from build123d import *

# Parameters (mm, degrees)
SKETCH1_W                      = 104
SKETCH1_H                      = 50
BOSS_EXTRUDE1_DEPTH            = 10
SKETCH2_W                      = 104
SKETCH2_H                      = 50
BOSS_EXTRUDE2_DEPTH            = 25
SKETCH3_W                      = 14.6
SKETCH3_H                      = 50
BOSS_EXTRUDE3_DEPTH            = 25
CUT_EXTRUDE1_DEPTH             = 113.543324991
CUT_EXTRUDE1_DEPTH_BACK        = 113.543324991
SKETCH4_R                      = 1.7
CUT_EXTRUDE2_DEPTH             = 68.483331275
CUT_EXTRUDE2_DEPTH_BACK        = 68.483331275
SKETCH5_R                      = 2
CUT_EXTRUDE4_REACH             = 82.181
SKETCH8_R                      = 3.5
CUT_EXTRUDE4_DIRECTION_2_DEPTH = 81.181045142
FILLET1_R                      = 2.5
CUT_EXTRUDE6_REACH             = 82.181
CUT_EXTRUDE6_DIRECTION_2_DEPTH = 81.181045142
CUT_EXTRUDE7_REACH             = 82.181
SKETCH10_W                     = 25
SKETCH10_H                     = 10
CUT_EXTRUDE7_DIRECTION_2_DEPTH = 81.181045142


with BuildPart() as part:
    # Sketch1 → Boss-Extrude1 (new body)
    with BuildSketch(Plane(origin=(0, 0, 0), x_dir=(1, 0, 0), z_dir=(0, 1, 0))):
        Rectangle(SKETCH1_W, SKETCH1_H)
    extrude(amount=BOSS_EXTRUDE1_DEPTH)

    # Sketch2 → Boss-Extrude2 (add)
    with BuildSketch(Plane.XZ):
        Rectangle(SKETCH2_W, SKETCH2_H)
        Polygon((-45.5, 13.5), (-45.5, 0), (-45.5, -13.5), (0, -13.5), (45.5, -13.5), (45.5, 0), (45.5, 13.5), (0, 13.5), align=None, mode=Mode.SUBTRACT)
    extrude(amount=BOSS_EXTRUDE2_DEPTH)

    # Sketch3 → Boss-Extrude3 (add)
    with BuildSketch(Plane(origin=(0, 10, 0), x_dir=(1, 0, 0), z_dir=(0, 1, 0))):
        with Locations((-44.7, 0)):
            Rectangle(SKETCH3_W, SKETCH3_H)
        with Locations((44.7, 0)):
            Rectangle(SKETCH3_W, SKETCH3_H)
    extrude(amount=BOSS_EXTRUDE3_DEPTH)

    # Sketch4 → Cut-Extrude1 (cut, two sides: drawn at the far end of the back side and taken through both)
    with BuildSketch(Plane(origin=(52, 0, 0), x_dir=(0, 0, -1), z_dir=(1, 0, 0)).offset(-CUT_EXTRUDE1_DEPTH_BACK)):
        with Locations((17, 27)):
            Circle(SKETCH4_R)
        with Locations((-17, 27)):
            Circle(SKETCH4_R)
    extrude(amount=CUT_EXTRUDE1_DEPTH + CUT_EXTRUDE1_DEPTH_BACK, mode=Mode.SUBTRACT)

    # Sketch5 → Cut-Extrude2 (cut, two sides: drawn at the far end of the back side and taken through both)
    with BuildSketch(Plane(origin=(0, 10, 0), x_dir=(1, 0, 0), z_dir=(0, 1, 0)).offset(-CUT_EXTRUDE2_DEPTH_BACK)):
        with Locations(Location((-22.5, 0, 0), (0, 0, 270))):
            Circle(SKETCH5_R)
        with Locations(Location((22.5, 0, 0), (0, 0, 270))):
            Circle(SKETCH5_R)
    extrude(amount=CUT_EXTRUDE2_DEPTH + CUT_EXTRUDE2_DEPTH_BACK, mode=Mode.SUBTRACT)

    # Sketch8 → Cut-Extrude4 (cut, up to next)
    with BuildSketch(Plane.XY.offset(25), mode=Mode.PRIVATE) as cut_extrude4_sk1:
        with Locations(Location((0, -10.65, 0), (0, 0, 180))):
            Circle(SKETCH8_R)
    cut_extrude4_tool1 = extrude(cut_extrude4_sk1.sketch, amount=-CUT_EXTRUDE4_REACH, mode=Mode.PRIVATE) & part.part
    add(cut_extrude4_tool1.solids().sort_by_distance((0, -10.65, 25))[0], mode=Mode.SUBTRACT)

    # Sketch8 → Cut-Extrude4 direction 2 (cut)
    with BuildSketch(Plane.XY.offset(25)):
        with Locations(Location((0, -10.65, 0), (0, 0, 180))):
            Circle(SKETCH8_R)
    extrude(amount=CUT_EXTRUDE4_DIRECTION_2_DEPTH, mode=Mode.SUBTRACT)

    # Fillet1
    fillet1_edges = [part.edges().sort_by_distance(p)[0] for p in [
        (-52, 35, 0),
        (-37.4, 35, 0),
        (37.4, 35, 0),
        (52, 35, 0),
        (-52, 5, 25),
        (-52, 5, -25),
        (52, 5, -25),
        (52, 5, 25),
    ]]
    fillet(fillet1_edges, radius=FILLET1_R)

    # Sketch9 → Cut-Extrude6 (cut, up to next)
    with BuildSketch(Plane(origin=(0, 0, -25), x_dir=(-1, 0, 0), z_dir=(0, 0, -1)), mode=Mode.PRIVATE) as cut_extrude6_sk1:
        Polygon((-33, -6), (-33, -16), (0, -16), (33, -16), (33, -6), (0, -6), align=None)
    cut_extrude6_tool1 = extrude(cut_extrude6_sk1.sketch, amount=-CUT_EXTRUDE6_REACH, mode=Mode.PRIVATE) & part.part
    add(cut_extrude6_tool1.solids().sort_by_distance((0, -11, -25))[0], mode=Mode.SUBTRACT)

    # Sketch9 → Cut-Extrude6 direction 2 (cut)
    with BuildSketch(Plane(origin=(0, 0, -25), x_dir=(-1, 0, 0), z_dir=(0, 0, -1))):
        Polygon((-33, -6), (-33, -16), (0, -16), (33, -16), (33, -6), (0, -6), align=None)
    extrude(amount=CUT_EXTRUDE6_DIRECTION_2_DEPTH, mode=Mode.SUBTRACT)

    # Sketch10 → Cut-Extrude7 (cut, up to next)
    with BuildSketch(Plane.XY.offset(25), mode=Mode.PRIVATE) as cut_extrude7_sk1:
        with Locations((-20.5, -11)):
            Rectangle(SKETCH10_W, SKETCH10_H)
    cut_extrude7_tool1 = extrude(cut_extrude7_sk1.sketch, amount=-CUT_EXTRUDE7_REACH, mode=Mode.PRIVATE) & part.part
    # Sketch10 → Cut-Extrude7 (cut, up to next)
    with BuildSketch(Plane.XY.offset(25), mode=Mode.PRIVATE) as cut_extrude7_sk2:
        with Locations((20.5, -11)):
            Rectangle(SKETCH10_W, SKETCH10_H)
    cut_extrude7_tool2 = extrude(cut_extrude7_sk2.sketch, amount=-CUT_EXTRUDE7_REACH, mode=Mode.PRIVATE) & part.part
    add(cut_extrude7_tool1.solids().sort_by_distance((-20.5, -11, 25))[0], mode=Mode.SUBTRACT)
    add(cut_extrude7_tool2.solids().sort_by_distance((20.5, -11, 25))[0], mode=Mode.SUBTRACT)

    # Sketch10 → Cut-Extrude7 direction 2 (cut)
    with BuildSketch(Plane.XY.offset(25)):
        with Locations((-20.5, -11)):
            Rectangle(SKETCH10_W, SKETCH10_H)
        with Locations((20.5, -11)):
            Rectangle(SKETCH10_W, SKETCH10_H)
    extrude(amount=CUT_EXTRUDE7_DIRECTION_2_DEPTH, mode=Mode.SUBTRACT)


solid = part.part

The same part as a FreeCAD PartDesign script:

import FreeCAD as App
import Part
import Sketcher


def edges_at(feature, points):
    """Names of the edges that pass closest to the given points."""
    edges = feature.Shape.Edges
    near = lambda p: min(range(len(edges)), key=lambda i: edges[i].distToShape(Part.Vertex(*p))[0])
    return sorted({f"Edge{near(p) + 1}" for p in points})


def add_polygon(sketch, points):
    """Adds a closed chain of lines whose ends are joined by coincident constraints."""
    first, n = sketch.GeometryCount, len(points)
    for a, b in zip(points, points[1:] + points[:1]):
        sketch.addGeometry(Part.LineSegment(App.Vector(*a, 0), App.Vector(*b, 0)), False)
    for i in range(n):
        sketch.addConstraint(Sketcher.Constraint("Coincident", first + i, 2, first + (i + 1) % n, 1))

doc = App.newDocument("Part")
params = doc.addObject("Spreadsheet::Sheet", "Params")
for row, (alias, value) in enumerate([
    ("sketch1_width", "104 mm"),
    ("sketch1_height", "50 mm"),
    ("pad1_length", "10 mm"),
    ("sketch2_width", "104 mm"),
    ("sketch2_width2", "91 mm"),
    ("sketch2_height", "50 mm"),
    ("sketch2_height2", "27 mm"),
    ("pad2_length", "25 mm"),
    ("sketch3_height", "50 mm"),
    ("sketch3_width", "14.6 mm"),
    ("pad3_length", "25 mm"),
    ("sketch4_diameter", "3.4 mm"),
    ("sketch5_diameter", "4 mm"),
    ("sketch6_diameter", "7 mm"),
    ("sketch7_diameter", "7 mm"),
    ("pocket4_length", "81.181045 mm"),
    ("fillet_radius", "2.5 mm"),
    ("sketch8_width", "66 mm"),
    ("sketch8_height", "10 mm"),
    ("sketch9_width", "66 mm"),
    ("sketch9_height", "10 mm"),
    ("pocket6_length", "81.181045 mm"),
    ("sketch10_width", "25 mm"),
    ("sketch10_height", "10 mm"),
    ("sketch11_width", "25 mm"),
    ("sketch11_height", "10 mm"),
    ("sketch12_width", "25 mm"),
    ("sketch12_height", "10 mm"),
    ("pocket9_length", "81.181045 mm"),
], start=1):
    params.set(f"A{row}", alias)
    params.set(f"B{row}", "=" + value)
    params.setAlias(f"B{row}", alias)

body = doc.addObject("PartDesign::Body", "Body")

# Sketch on XZ plane
sketch1 = doc.addObject("Sketcher::SketchObject", "Sketch")
body.addObject(sketch1)
sketch1.AttachmentSupport = (doc.XZ_Plane, [""])
sketch1.MapMode = "FlatFace"
add_polygon(sketch1, [(-52, -25), (-52, 25), (52, 25), (52, -25)])  # lines 0-3
sketch1.addConstraint(Sketcher.Constraint("Vertical", 0))
sketch1.addConstraint(Sketcher.Constraint("Horizontal", 1))
sketch1.addConstraint(Sketcher.Constraint("Vertical", 2))
sketch1.addConstraint(Sketcher.Constraint("Horizontal", 3))
sketch1.addConstraint(Sketcher.Constraint("Symmetric", 0, 2, 2, 2, -1, 1))
sketch1.addConstraint(Sketcher.Constraint("DistanceX", 1, 1, 1, 2, 104.0))
sketch1.addConstraint(Sketcher.Constraint("DistanceY", 0, 1, 0, 2, 50.0))
sketch1.setExpression("Constraints[9]", "Params.sketch1_width")
sketch1.setExpression("Constraints[10]", "Params.sketch1_height")
pad1 = doc.addObject("PartDesign::Pad", "Pad")
body.addObject(pad1)
pad1.Profile = sketch1
pad1.setExpression("Length", "Params.pad1_length")
pad1.Reversed = True

# Sketch on XZ plane
sketch2 = doc.addObject("Sketcher::SketchObject", "Sketch001")
body.addObject(sketch2)
sketch2.AttachmentSupport = (doc.XZ_Plane, [""])
sketch2.MapMode = "FlatFace"
add_polygon(sketch2, [(-52, 25), (-52, -25), (52, -25), (52, 25)])  # lines 0-3
add_polygon(sketch2, [(-45.5, -13.5), (-45.5, 13.5), (45.5, 13.5), (45.5, -13.5)])  # lines 4-7
sketch2.addConstraint(Sketcher.Constraint("Vertical", 0))
sketch2.addConstraint(Sketcher.Constraint("Horizontal", 1))
sketch2.addConstraint(Sketcher.Constraint("Vertical", 2))
sketch2.addConstraint(Sketcher.Constraint("Horizontal", 3))
sketch2.addConstraint(Sketcher.Constraint("Vertical", 4))
sketch2.addConstraint(Sketcher.Constraint("Horizontal", 5))
sketch2.addConstraint(Sketcher.Constraint("Vertical", 6))
sketch2.addConstraint(Sketcher.Constraint("Horizontal", 7))
sketch2.addConstraint(Sketcher.Constraint("Symmetric", 0, 2, 2, 2, -1, 1))
sketch2.addConstraint(Sketcher.Constraint("Symmetric", 4, 2, 6, 2, -1, 1))
sketch2.addConstraint(Sketcher.Constraint("DistanceX", 1, 1, 1, 2, 104.0))
sketch2.addConstraint(Sketcher.Constraint("DistanceX", 5, 1, 5, 2, 91.0))
sketch2.addConstraint(Sketcher.Constraint("DistanceY", 0, 2, 0, 1, 50.0))
sketch2.addConstraint(Sketcher.Constraint("DistanceY", 4, 1, 4, 2, 27.0))
sketch2.setExpression("Constraints[18]", "Params.sketch2_width")
sketch2.setExpression("Constraints[19]", "Params.sketch2_width2")
sketch2.setExpression("Constraints[20]", "Params.sketch2_height")
sketch2.setExpression("Constraints[21]", "Params.sketch2_height2")
pad2 = doc.addObject("PartDesign::Pad", "Pad001")
body.addObject(pad2)
pad2.Profile = sketch2
pad2.setExpression("Length", "Params.pad2_length")

# Sketch on XZ plane
sketch3 = doc.addObject("Sketcher::SketchObject", "Sketch002")
body.addObject(sketch3)
sketch3.AttachmentSupport = (doc.XZ_Plane, [""])
sketch3.MapMode = "FlatFace"
sketch3.AttachmentOffset = App.Placement(App.Vector(0, 0, -10), App.Rotation())
add_polygon(sketch3, [(-52, -25), (-52, 25), (-37.4, 25), (-37.4, -25)])  # lines 0-3
add_polygon(sketch3, [(37.4, -25), (37.4, 25), (52, 25), (52, -25)])  # lines 4-7
sketch3.addConstraint(Sketcher.Constraint("Vertical", 0))
sketch3.addConstraint(Sketcher.Constraint("Horizontal", 1))
sketch3.addConstraint(Sketcher.Constraint("Vertical", 2))
sketch3.addConstraint(Sketcher.Constraint("Horizontal", 3))
sketch3.addConstraint(Sketcher.Constraint("Vertical", 4))
sketch3.addConstraint(Sketcher.Constraint("Horizontal", 5))
sketch3.addConstraint(Sketcher.Constraint("Vertical", 6))
sketch3.addConstraint(Sketcher.Constraint("Horizontal", 7))
sketch3.addConstraint(Sketcher.Constraint("Symmetric", 2, 2, 4, 2, -1, 1))
sketch3.addConstraint(Sketcher.Constraint("Symmetric", 0, 2, 6, 2, -1, 1))
sketch3.addConstraint(Sketcher.Constraint("Horizontal", 1, 2, 4, 2))
sketch3.addConstraint(Sketcher.Constraint("DistanceY", 0, 1, 0, 2, 50.0))
sketch3.addConstraint(Sketcher.Constraint("DistanceX", 1, 1, 1, 2, 14.6))
sketch3.addConstraint(Sketcher.Constraint("DistanceX", 0, 2, -1, 1, 52.0))
sketch3.setExpression("Constraints[19]", "Params.sketch3_height")
sketch3.setExpression("Constraints[20]", "Params.sketch3_width")
pad3 = doc.addObject("PartDesign::Pad", "Pad002")
body.addObject(pad3)
pad3.Profile = sketch3
pad3.setExpression("Length", "Params.pad3_length")
pad3.Reversed = True

# Sketch on YZ plane
sketch4 = doc.addObject("Sketcher::SketchObject", "Sketch003")
body.addObject(sketch4)
sketch4.AttachmentSupport = (doc.YZ_Plane, [""])
sketch4.MapMode = "FlatFace"
sketch4.AttachmentOffset = App.Placement(App.Vector(0, 0, 52), App.Rotation())
sketch4.addGeometry(Part.Circle(App.Vector(27, -17, 0), App.Vector(0, 0, 1), 1.7), False)
sketch4.addGeometry(Part.Circle(App.Vector(27, 17, 0), App.Vector(0, 0, 1), 1.7), False)
sketch4.addConstraint(Sketcher.Constraint("Equal", 0, 1))
sketch4.addConstraint(Sketcher.Constraint("Symmetric", 0, 3, 1, 3, -1))
sketch4.addConstraint(Sketcher.Constraint("Diameter", 0, 3.4))
sketch4.addConstraint(Sketcher.Constraint("DistanceX", -1, 1, 0, 3, 27.0))
sketch4.addConstraint(Sketcher.Constraint("DistanceY", 0, 3, -1, 1, 17.0))
sketch4.setExpression("Constraints[2]", "Params.sketch4_diameter")
pocket1 = doc.addObject("PartDesign::Pocket", "Pocket")
body.addObject(pocket1)
pocket1.Profile = sketch4
pocket1.Type = "ThroughAll"
pocket1.Midplane = True

# Sketch on XZ plane
sketch5 = doc.addObject("Sketcher::SketchObject", "Sketch004")
body.addObject(sketch5)
sketch5.AttachmentSupport = (doc.XZ_Plane, [""])
sketch5.MapMode = "FlatFace"
sketch5.AttachmentOffset = App.Placement(App.Vector(0, 0, -10), App.Rotation())
sketch5.addGeometry(Part.Circle(App.Vector(-22.5, 0, 0), App.Vector(0, 0, 1), 2), False)
sketch5.addGeometry(Part.Circle(App.Vector(22.5, 0, 0), App.Vector(0, 0, 1), 2), False)
sketch5.addConstraint(Sketcher.Constraint("Equal", 0, 1))
sketch5.addConstraint(Sketcher.Constraint("Symmetric", 0, 3, 1, 3, -1, 1))
sketch5.addConstraint(Sketcher.Constraint("PointOnObject", 0, 3, -1))
sketch5.addConstraint(Sketcher.Constraint("Diameter", 0, 4.0))
sketch5.addConstraint(Sketcher.Constraint("DistanceX", 0, 3, 1, 3, 45.0))
sketch5.setExpression("Constraints[3]", "Params.sketch5_diameter")
pocket2 = doc.addObject("PartDesign::Pocket", "Pocket001")
body.addObject(pocket2)
pocket2.Profile = sketch5
pocket2.Type = "ThroughAll"
pocket2.Midplane = True

# Sketch on XY plane
sketch6 = doc.addObject("Sketcher::SketchObject", "Sketch005")
body.addObject(sketch6)
sketch6.AttachmentSupport = (doc.XY_Plane, [""])
sketch6.MapMode = "FlatFace"
sketch6.AttachmentOffset = App.Placement(App.Vector(0, 0, 25), App.Rotation())
sketch6.addGeometry(Part.Circle(App.Vector(0, -10.65, 0), App.Vector(0, 0, 1), 3.5), False)
sketch6.addConstraint(Sketcher.Constraint("PointOnObject", 0, 3, -2))
sketch6.addConstraint(Sketcher.Constraint("Diameter", 0, 7.0))
sketch6.addConstraint(Sketcher.Constraint("DistanceY", 0, 3, -1, 1, 10.65))
sketch6.setExpression("Constraints[1]", "Params.sketch6_diameter")
pocket3 = doc.addObject("PartDesign::Pocket", "Pocket002")
body.addObject(pocket3)
pocket3.Profile = sketch6
pocket3.Type = "UpToFirst"

# Sketch on XY plane
sketch7 = doc.addObject("Sketcher::SketchObject", "Sketch006")
body.addObject(sketch7)
sketch7.AttachmentSupport = (doc.XY_Plane, [""])
sketch7.MapMode = "FlatFace"
sketch7.AttachmentOffset = App.Placement(App.Vector(0, 0, 25), App.Rotation())
sketch7.addGeometry(Part.Circle(App.Vector(0, -10.65, 0), App.Vector(0, 0, 1), 3.5), False)
sketch7.addConstraint(Sketcher.Constraint("PointOnObject", 0, 3, -2))
sketch7.addConstraint(Sketcher.Constraint("Diameter", 0, 7.0))
sketch7.addConstraint(Sketcher.Constraint("DistanceY", 0, 3, -1, 1, 10.65))
sketch7.setExpression("Constraints[1]", "Params.sketch7_diameter")
pocket4 = doc.addObject("PartDesign::Pocket", "Pocket003")
body.addObject(pocket4)
pocket4.Profile = sketch7
pocket4.setExpression("Length", "Params.pocket4_length")
pocket4.Reversed = True
doc.recompute()

fillet = doc.addObject("PartDesign::Fillet", "Fillet")
body.addObject(fillet)
fillet.Base = (pocket4, edges_at(pocket4, [
    (-52, 35, 0),
    (-37.4, 35, 0),
    (37.4, 35, 0),
    (52, 35, 0),
    (-52, 5, 25),
    (-52, 5, -25),
    (52, 5, -25),
    (52, 5, 25),
]))
fillet.setExpression("Radius", "Params.fillet_radius")

# Sketch on XY plane
sketch8 = doc.addObject("Sketcher::SketchObject", "Sketch007")
body.addObject(sketch8)
sketch8.AttachmentSupport = (doc.XY_Plane, [""])
sketch8.MapMode = "FlatFace"
sketch8.AttachmentOffset = App.Placement(App.Vector(0, 0, -25), App.Rotation())
add_polygon(sketch8, [(33, -6), (33, -16), (-33, -16), (-33, -6)])  # lines 0-3
sketch8.addConstraint(Sketcher.Constraint("Vertical", 0))
sketch8.addConstraint(Sketcher.Constraint("Horizontal", 1))
sketch8.addConstraint(Sketcher.Constraint("Vertical", 2))
sketch8.addConstraint(Sketcher.Constraint("Horizontal", 3))
sketch8.addConstraint(Sketcher.Constraint("DistanceX", 1, 2, 1, 1, 66.0))
sketch8.addConstraint(Sketcher.Constraint("DistanceY", 0, 2, 0, 1, 10.0))
sketch8.addConstraint(Sketcher.Constraint("DistanceX", -1, 1, 0, 2, 33.0))
sketch8.addConstraint(Sketcher.Constraint("DistanceY", 0, 2, -1, 1, 16.0))
sketch8.setExpression("Constraints[8]", "Params.sketch8_width")
sketch8.setExpression("Constraints[9]", "Params.sketch8_height")
pocket5 = doc.addObject("PartDesign::Pocket", "Pocket004")
body.addObject(pocket5)
pocket5.Profile = sketch8
pocket5.Type = "UpToFirst"
pocket5.Reversed = True

# Sketch on XY plane
sketch9 = doc.addObject("Sketcher::SketchObject", "Sketch008")
body.addObject(sketch9)
sketch9.AttachmentSupport = (doc.XY_Plane, [""])
sketch9.MapMode = "FlatFace"
sketch9.AttachmentOffset = App.Placement(App.Vector(0, 0, -25), App.Rotation())
add_polygon(sketch9, [(33, -6), (33, -16), (-33, -16), (-33, -6)])  # lines 0-3
sketch9.addConstraint(Sketcher.Constraint("Vertical", 0))
sketch9.addConstraint(Sketcher.Constraint("Horizontal", 1))
sketch9.addConstraint(Sketcher.Constraint("Vertical", 2))
sketch9.addConstraint(Sketcher.Constraint("Horizontal", 3))
sketch9.addConstraint(Sketcher.Constraint("DistanceX", 1, 2, 1, 1, 66.0))
sketch9.addConstraint(Sketcher.Constraint("DistanceY", 0, 2, 0, 1, 10.0))
sketch9.addConstraint(Sketcher.Constraint("DistanceX", -1, 1, 0, 2, 33.0))
sketch9.addConstraint(Sketcher.Constraint("DistanceY", 0, 2, -1, 1, 16.0))
sketch9.setExpression("Constraints[8]", "Params.sketch9_width")
sketch9.setExpression("Constraints[9]", "Params.sketch9_height")
pocket6 = doc.addObject("PartDesign::Pocket", "Pocket005")
body.addObject(pocket6)
pocket6.Profile = sketch9
pocket6.setExpression("Length", "Params.pocket6_length")

# Sketch on XY plane
sketch10 = doc.addObject("Sketcher::SketchObject", "Sketch009")
body.addObject(sketch10)
sketch10.AttachmentSupport = (doc.XY_Plane, [""])
sketch10.MapMode = "FlatFace"
sketch10.AttachmentOffset = App.Placement(App.Vector(0, 0, 25), App.Rotation())
add_polygon(sketch10, [(-33, -6), (-33, -16), (-8, -16), (-8, -6)])  # lines 0-3
sketch10.addConstraint(Sketcher.Constraint("Vertical", 0))
sketch10.addConstraint(Sketcher.Constraint("Horizontal", 1))
sketch10.addConstraint(Sketcher.Constraint("Vertical", 2))
sketch10.addConstraint(Sketcher.Constraint("Horizontal", 3))
sketch10.addConstraint(Sketcher.Constraint("DistanceX", 1, 1, 1, 2, 25.0))
sketch10.addConstraint(Sketcher.Constraint("DistanceY", 0, 2, 0, 1, 10.0))
sketch10.addConstraint(Sketcher.Constraint("DistanceX", 0, 2, -1, 1, 33.0))
sketch10.addConstraint(Sketcher.Constraint("DistanceY", 0, 2, -1, 1, 16.0))
sketch10.setExpression("Constraints[8]", "Params.sketch10_width")
sketch10.setExpression("Constraints[9]", "Params.sketch10_height")
pocket7 = doc.addObject("PartDesign::Pocket", "Pocket006")
body.addObject(pocket7)
pocket7.Profile = sketch10
pocket7.Type = "UpToFirst"

# Sketch on XY plane
sketch11 = doc.addObject("Sketcher::SketchObject", "Sketch010")
body.addObject(sketch11)
sketch11.AttachmentSupport = (doc.XY_Plane, [""])
sketch11.MapMode = "FlatFace"
sketch11.AttachmentOffset = App.Placement(App.Vector(0, 0, 25), App.Rotation())
add_polygon(sketch11, [(8, -6), (8, -16), (33, -16), (33, -6)])  # lines 0-3
sketch11.addConstraint(Sketcher.Constraint("Vertical", 0))
sketch11.addConstraint(Sketcher.Constraint("Horizontal", 1))
sketch11.addConstraint(Sketcher.Constraint("Vertical", 2))
sketch11.addConstraint(Sketcher.Constraint("Horizontal", 3))
sketch11.addConstraint(Sketcher.Constraint("DistanceX", 1, 1, 1, 2, 25.0))
sketch11.addConstraint(Sketcher.Constraint("DistanceY", 0, 2, 0, 1, 10.0))
sketch11.addConstraint(Sketcher.Constraint("DistanceX", -1, 1, 0, 2, 8.0))
sketch11.addConstraint(Sketcher.Constraint("DistanceY", 0, 2, -1, 1, 16.0))
sketch11.setExpression("Constraints[8]", "Params.sketch11_width")
sketch11.setExpression("Constraints[9]", "Params.sketch11_height")
pocket8 = doc.addObject("PartDesign::Pocket", "Pocket007")
body.addObject(pocket8)
pocket8.Profile = sketch11
pocket8.Type = "UpToFirst"

# Sketch on XY plane
sketch12 = doc.addObject("Sketcher::SketchObject", "Sketch011")
body.addObject(sketch12)
sketch12.AttachmentSupport = (doc.XY_Plane, [""])
sketch12.MapMode = "FlatFace"
sketch12.AttachmentOffset = App.Placement(App.Vector(0, 0, 25), App.Rotation())
add_polygon(sketch12, [(-33, -6), (-33, -16), (-8, -16), (-8, -6)])  # lines 0-3
add_polygon(sketch12, [(8, -6), (8, -16), (33, -16), (33, -6)])  # lines 4-7
sketch12.addConstraint(Sketcher.Constraint("Vertical", 0))
sketch12.addConstraint(Sketcher.Constraint("Horizontal", 1))
sketch12.addConstraint(Sketcher.Constraint("Vertical", 2))
sketch12.addConstraint(Sketcher.Constraint("Horizontal", 3))
sketch12.addConstraint(Sketcher.Constraint("Vertical", 4))
sketch12.addConstraint(Sketcher.Constraint("Horizontal", 5))
sketch12.addConstraint(Sketcher.Constraint("Vertical", 6))
sketch12.addConstraint(Sketcher.Constraint("Horizontal", 7))
sketch12.addConstraint(Sketcher.Constraint("Symmetric", 1, 2, 4, 2, -2))
sketch12.addConstraint(Sketcher.Constraint("Symmetric", 3, 2, 6, 2, -2))
sketch12.addConstraint(Sketcher.Constraint("DistanceX", 1, 1, 1, 2, 25.0))
sketch12.addConstraint(Sketcher.Constraint("DistanceY", 0, 2, 0, 1, 10.0))
sketch12.addConstraint(Sketcher.Constraint("DistanceX", 0, 2, -1, 1, 33.0))
sketch12.addConstraint(Sketcher.Constraint("DistanceY", 0, 2, -1, 1, 16.0))
sketch12.setExpression("Constraints[18]", "Params.sketch12_width")
sketch12.setExpression("Constraints[19]", "Params.sketch12_height")
pocket9 = doc.addObject("PartDesign::Pocket", "Pocket008")
body.addObject(pocket9)
pocket9.Profile = sketch12
pocket9.setExpression("Length", "Params.pocket9_length")
pocket9.Reversed = True

doc.recompute()
